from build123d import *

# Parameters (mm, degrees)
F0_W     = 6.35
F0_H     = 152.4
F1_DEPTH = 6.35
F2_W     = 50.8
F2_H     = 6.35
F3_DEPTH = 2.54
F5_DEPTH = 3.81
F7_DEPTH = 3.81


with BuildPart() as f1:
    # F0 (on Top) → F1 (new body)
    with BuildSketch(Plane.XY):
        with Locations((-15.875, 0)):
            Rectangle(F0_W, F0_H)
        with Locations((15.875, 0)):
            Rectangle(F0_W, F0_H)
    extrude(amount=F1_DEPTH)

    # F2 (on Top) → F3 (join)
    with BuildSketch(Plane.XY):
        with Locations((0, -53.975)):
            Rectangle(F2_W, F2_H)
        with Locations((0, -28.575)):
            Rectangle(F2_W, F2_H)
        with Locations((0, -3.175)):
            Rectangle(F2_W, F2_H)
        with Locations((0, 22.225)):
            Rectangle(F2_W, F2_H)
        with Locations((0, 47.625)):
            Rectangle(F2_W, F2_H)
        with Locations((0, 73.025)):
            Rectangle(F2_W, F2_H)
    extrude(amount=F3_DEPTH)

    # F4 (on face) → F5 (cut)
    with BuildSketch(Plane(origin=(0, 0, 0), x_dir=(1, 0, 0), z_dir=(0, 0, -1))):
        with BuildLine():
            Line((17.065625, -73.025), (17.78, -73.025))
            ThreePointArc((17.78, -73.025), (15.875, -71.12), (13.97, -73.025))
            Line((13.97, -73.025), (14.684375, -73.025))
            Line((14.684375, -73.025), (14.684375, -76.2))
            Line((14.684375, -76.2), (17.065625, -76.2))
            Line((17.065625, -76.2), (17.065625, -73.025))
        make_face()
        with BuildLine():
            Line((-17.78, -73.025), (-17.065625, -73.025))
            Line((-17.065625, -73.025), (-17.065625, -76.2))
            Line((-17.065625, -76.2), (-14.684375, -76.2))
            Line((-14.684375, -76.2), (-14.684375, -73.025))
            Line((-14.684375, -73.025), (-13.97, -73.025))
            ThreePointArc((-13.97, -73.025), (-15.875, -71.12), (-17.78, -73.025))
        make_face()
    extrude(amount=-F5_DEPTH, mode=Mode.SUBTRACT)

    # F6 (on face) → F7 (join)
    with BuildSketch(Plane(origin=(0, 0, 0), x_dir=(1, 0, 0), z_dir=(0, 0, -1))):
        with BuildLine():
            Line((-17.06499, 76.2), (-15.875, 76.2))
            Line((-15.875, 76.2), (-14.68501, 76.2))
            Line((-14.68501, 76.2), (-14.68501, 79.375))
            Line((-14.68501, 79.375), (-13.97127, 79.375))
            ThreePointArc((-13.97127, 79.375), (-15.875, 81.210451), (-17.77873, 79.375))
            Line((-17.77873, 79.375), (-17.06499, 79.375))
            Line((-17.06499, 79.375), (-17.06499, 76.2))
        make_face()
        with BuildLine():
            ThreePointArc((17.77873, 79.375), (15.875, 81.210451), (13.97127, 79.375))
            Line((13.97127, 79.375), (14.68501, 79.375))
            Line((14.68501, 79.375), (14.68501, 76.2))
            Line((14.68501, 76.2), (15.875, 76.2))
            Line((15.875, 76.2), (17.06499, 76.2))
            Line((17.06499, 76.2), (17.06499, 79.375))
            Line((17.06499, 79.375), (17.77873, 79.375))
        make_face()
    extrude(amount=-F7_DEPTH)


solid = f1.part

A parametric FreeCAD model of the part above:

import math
import FreeCAD as App
import Part
import Sketcher

V = App.Vector
Q = App.Units.Quantity


def add_polygon(sketch, points):
    """Adds a closed chain of lines whose ends are joined by coincident constraints."""
    first, n = sketch.GeometryCount, len(points)
    for a, b in zip(points, points[1:] + points[:1]):
        sketch.addGeometry(Part.LineSegment(App.Vector(*a, 0), App.Vector(*b, 0)), False)
    for i in range(n):
        sketch.addConstraint(Sketcher.Constraint("Coincident", first + i, 2, first + (i + 1) % n, 1))

doc = App.newDocument("Part")
params = doc.addObject("Spreadsheet::Sheet", "Params")
for row, (alias, value) in enumerate([
    ("sketch1_height", "6 in"),
    ("sketch1_width", "0.25 in"),
    ("pad1_length", "0.25 in"),
    ("sketch2_width", "2 in"),
    ("sketch2_height", "0.25 in"),
    ("pad2_length", "0.1 in"),
    ("sketch3_radius", "0.075 in"),
    ("sketch3_width", "0.09375 in"),
    ("sketch3_height", "0.125 in"),
    ("pocket1_length", "0.15 in"),
    ("sketch4_radius", "0.075 in"),
    ("sketch4_height", "0.125 in"),
    ("pad3_length", "0.15 in"),
], start=1):
    params.set(f"A{row}", alias)
    params.set(f"B{row}", "=" + value)
    params.setAlias(f"B{row}", alias)

body = doc.addObject("PartDesign::Body", "Body")
body.AllowCompound = True

# Sketch on XY plane
sketch1 = body.newObject("Sketcher::SketchObject", "Sketch")
sketch1.AttachmentSupport = (doc.getObject("XY_Plane"), [""])
sketch1.MapMode = "FlatFace"
add_polygon(sketch1, [(-19, 76), (-19, -76), (-13, -76), (-13, 76)])  # lines 0-3
add_polygon(sketch1, [(13, 76), (13, -76), (19, -76), (19, 76)])  # lines 4-7
sketch1.addConstraint(Sketcher.Constraint("Vertical", 0))
sketch1.addConstraint(Sketcher.Constraint("Horizontal", 1))
sketch1.addConstraint(Sketcher.Constraint("Vertical", 2))
sketch1.addConstraint(Sketcher.Constraint("Horizontal", 3))
sketch1.addConstraint(Sketcher.Constraint("Vertical", 4))
sketch1.addConstraint(Sketcher.Constraint("Horizontal", 5))
sketch1.addConstraint(Sketcher.Constraint("Vertical", 6))
sketch1.addConstraint(Sketcher.Constraint("Horizontal", 7))
sketch1.addConstraint(Sketcher.Constraint("Symmetric", 2, 2, 4, 2, -1, 1))
sketch1.addConstraint(Sketcher.Constraint("Symmetric", 0, 2, 6, 2, -1, 1))
sketch1.addConstraint(Sketcher.Constraint("Horizontal", 1, 2, 4, 2))
sketch1.addConstraint(Sketcher.Constraint("DistanceY", 0, 2, 0, 1, Q("6 in")))
sketch1.addConstraint(Sketcher.Constraint("DistanceX", 1, 2, 4, 2, Q("1 in")))
sketch1.addConstraint(Sketcher.Constraint("DistanceX", 1, 1, 1, 2, Q("0.25 in")))
sketch1.setExpression("Constraints[19]", "Params.sketch1_height")
sketch1.setExpression("Constraints[21]", "Params.sketch1_width")
pad1 = body.newObject("PartDesign::Pad", "Pad")
pad1.Profile = sketch1
pad1.setExpression("Length", "Params.pad1_length")

# Sketch on XY plane
sketch2 = body.newObject("Sketcher::SketchObject", "Sketch001")
sketch2.AttachmentSupport = (doc.getObject("XY_Plane"), [""])
sketch2.MapMode = "FlatFace"
add_polygon(sketch2, [(-25, -51), (-25, -57), (25, -57), (25, -51)])  # lines 0-3
add_polygon(sketch2, [(-25, -25), (-25, -32), (25, -32), (25, -25)])  # lines 4-7
add_polygon(sketch2, [(-25, 0), (-25, -6), (25, -6), (25, 0)])  # lines 8-11
add_polygon(sketch2, [(-25, 25), (-25, 19), (25, 19), (25, 25)])  # lines 12-15
add_polygon(sketch2, [(-25, 51), (-25, 44), (25, 44), (25, 51)])  # lines 16-19
add_polygon(sketch2, [(-25, 76), (-25, 70), (25, 70), (25, 76)])  # lines 20-23
sketch2.addConstraint(Sketcher.Constraint("Vertical", 0))
sketch2.addConstraint(Sketcher.Constraint("Horizontal", 1))
sketch2.addConstraint(Sketcher.Constraint("Vertical", 2))
sketch2.addConstraint(Sketcher.Constraint("Horizontal", 3))
sketch2.addConstraint(Sketcher.Constraint("Vertical", 4))
sketch2.addConstraint(Sketcher.Constraint("Horizontal", 5))
sketch2.addConstraint(Sketcher.Constraint("Vertical", 6))
sketch2.addConstraint(Sketcher.Constraint("Horizontal", 7))
sketch2.addConstraint(Sketcher.Constraint("Vertical", 8))
sketch2.addConstraint(Sketcher.Constraint("Horizontal", 9))
sketch2.addConstraint(Sketcher.Constraint("Vertical", 10))
sketch2.addConstraint(Sketcher.Constraint("Horizontal", 11))
sketch2.addConstraint(Sketcher.Constraint("Vertical", 12))
sketch2.addConstraint(Sketcher.Constraint("Horizontal", 13))
sketch2.addConstraint(Sketcher.Constraint("Vertical", 14))
sketch2.addConstraint(Sketcher.Constraint("Horizontal", 15))
sketch2.addConstraint(Sketcher.Constraint("Vertical", 16))
sketch2.addConstraint(Sketcher.Constraint("Horizontal", 17))
sketch2.addConstraint(Sketcher.Constraint("Vertical", 18))
sketch2.addConstraint(Sketcher.Constraint("Horizontal", 19))
sketch2.addConstraint(Sketcher.Constraint("Vertical", 20))
sketch2.addConstraint(Sketcher.Constraint("Horizontal", 21))
sketch2.addConstraint(Sketcher.Constraint("Vertical", 22))
sketch2.addConstraint(Sketcher.Constraint("Horizontal", 23))
sketch2.addConstraint(Sketcher.Constraint("Symmetric", 10, 2, 11, 2, -1, 1))
sketch2.addConstraint(Sketcher.Constraint("Symmetric", 7, 2, 14, 2, -1, 1))
sketch2.addConstraint(Sketcher.Constraint("Symmetric", 3, 2, 18, 2, -1, 1))
sketch2.addConstraint(Sketcher.Constraint("Vertical", 3, 2, 4, 2))
sketch2.addConstraint(Sketcher.Constraint("Vertical", 2, 2, 5, 2))
sketch2.addConstraint(Sketcher.Constraint("Vertical", 7, 2, 8, 2))
sketch2.addConstraint(Sketcher.Constraint("Vertical", 6, 2, 9, 2))
sketch2.addConstraint(Sketcher.Constraint("Vertical", 11, 2, 12, 2))
sketch2.addConstraint(Sketcher.Constraint("Vertical", 15, 2, 16, 2))
sketch2.addConstraint(Sketcher.Constraint("Vertical", 19, 2, 20, 2))
sketch2.addConstraint(Sketcher.Constraint("Vertical", 18, 2, 21, 2))
sketch2.addConstraint(Sketcher.Constraint("Equal", 2, 4))
sketch2.addConstraint(Sketcher.Constraint("Equal", 6, 8))
sketch2.addConstraint(Sketcher.Constraint("Equal", 10, 12))
sketch2.addConstraint(Sketcher.Constraint("Equal", 14, 16))
sketch2.addConstraint(Sketcher.Constraint("Equal", 18, 20))
sketch2.addConstraint(Sketcher.Constraint("DistanceX", 1, 1, 1, 2, Q("2 in")))
sketch2.addConstraint(Sketcher.Constraint("DistanceY", 2, 2, -1, 1, Q("2 in")))
sketch2.addConstraint(Sketcher.Constraint("DistanceY", 6, 2, -1, 1, Q("1 in")))
sketch2.addConstraint(Sketcher.Constraint("DistanceY", -1, 1, 22, 2, Q("3 in")))
sketch2.addConstraint(Sketcher.Constraint("DistanceY", 0, 2, 0, 1, Q("0.25 in")))
sketch2.setExpression("Constraints[64]", "Params.sketch2_width")
sketch2.setExpression("Constraints[68]", "Params.sketch2_height")
pad2 = body.newObject("PartDesign::Pad", "Pad001")
pad2.Profile = sketch2
pad2.setExpression("Length", "Params.pad2_length")

# Sketch on XY plane
sketch3 = body.newObject("Sketcher::SketchObject", "Sketch002")
sketch3.AttachmentSupport = (doc.getObject("XY_Plane"), [""])
sketch3.MapMode = "FlatFace"
sketch3.addGeometry(Part.LineSegment(V(17.1, 73, 0), V(17.8, 73, 0)), False)
sketch3.addGeometry(Part.ArcOfCircle(Part.Circle(V(15.9, 73, 0), V(0, 0, 1), 1.9), math.radians(180), math.radians(360)), False)
sketch3.addGeometry(Part.LineSegment(V(14, 73, 0), V(14.7, 73, 0)), False)
sketch3.addGeometry(Part.LineSegment(V(14.7, 73, 0), V(14.7, 76.2, 0)), False)
sketch3.addGeometry(Part.LineSegment(V(14.7, 76.2, 0), V(17.1, 76.2, 0)), False)
sketch3.addGeometry(Part.LineSegment(V(17.1, 76.2, 0), V(17.1, 73, 0)), False)
sketch3.addGeometry(Part.LineSegment(V(-17.8, 73, 0), V(-17.1, 73, 0)), False)
sketch3.addGeometry(Part.LineSegment(V(-17.1, 73, 0), V(-17.1, 76.2, 0)), False)
sketch3.addGeometry(Part.LineSegment(V(-17.1, 76.2, 0), V(-14.7, 76.2, 0)), False)
sketch3.addGeometry(Part.LineSegment(V(-14.7, 76.2, 0), V(-14.7, 73, 0)), False)
sketch3.addGeometry(Part.LineSegment(V(-14.7, 73, 0), V(-14, 73, 0)), False)
sketch3.addGeometry(Part.ArcOfCircle(Part.Circle(V(-15.9, 73, 0), V(0, 0, 1), 1.9), math.radians(180), math.radians(360)), False)
sketch3.addConstraint(Sketcher.Constraint("Coincident", 0, 2, 1, 2))
sketch3.addConstraint(Sketcher.Constraint("Coincident", 1, 1, 2, 1))
sketch3.addConstraint(Sketcher.Constraint("Coincident", 2, 2, 3, 1))
sketch3.addConstraint(Sketcher.Constraint("Coincident", 3, 2, 4, 1))
sketch3.addConstraint(Sketcher.Constraint("Coincident", 4, 2, 5, 1))
sketch3.addConstraint(Sketcher.Constraint("Coincident", 5, 2, 0, 1))
sketch3.addConstraint(Sketcher.Constraint("Coincident", 6, 2, 7, 1))
sketch3.addConstraint(Sketcher.Constraint("Coincident", 7, 2, 8, 1))
sketch3.addConstraint(Sketcher.Constraint("Coincident", 8, 2, 9, 1))
sketch3.addConstraint(Sketcher.Constraint("Coincident", 9, 2, 10, 1))
sketch3.addConstraint(Sketcher.Constraint("Coincident", 10, 2, 11, 2))
sketch3.addConstraint(Sketcher.Constraint("Coincident", 11, 1, 6, 1))
sketch3.addConstraint(Sketcher.Constraint("Horizontal", 0))
sketch3.addConstraint(Sketcher.Constraint("Horizontal", 2))
sketch3.addConstraint(Sketcher.Constraint("Vertical", 3))
sketch3.addConstraint(Sketcher.Constraint("Horizontal", 4))
sketch3.addConstraint(Sketcher.Constraint("Vertical", 5))
sketch3.addConstraint(Sketcher.Constraint("Horizontal", 6))
sketch3.addConstraint(Sketcher.Constraint("Vertical", 7))
sketch3.addConstraint(Sketcher.Constraint("Horizontal", 8))
sketch3.addConstraint(Sketcher.Constraint("Vertical", 9))
sketch3.addConstraint(Sketcher.Constraint("Horizontal", 10))
sketch3.addConstraint(Sketcher.Constraint("Equal", 1, 11))
sketch3.addConstraint(Sketcher.Constraint("Symmetric", 1, 3, 11, 3, -2))
sketch3.addConstraint(Sketcher.Constraint("Symmetric", 5, 2, 6, 2, -2))
sketch3.addConstraint(Sketcher.Constraint("Symmetric", 3, 2, 8, 2, -2))
sketch3.addConstraint(Sketcher.Constraint("Horizontal", 11, 3, 0, 2))
sketch3.addConstraint(Sketcher.Constraint("Horizontal", 0, 2, 1, 1))
sketch3.addConstraint(Sketcher.Constraint("Horizontal", 6, 2, 9, 2))
sketch3.addConstraint(Sketcher.Constraint("Equal", 0, 2))
sketch3.addConstraint(Sketcher.Constraint("DistanceY", -1, 1, 3, 2, Q("3 in")))
sketch3.addConstraint(Sketcher.Constraint("Radius", 1, Q("0.075 in")))
sketch3.addConstraint(Sketcher.Constraint("DistanceX", -1, 1, 0, 2, Q("0.7 in")))
sketch3.addConstraint(Sketcher.Constraint("DistanceX", 4, 1, 4, 2, Q("0.09375 in")))
sketch3.addConstraint(Sketcher.Constraint("DistanceY", 3, 1, 3, 2, Q("0.125 in")))
sketch3.setExpression("Constraints[31]", "Params.sketch3_radius")
sketch3.setExpression("Constraints[33]", "Params.sketch3_width")
sketch3.setExpression("Constraints[34]", "Params.sketch3_height")
pocket1 = body.newObject("PartDesign::Pocket", "Pocket")
pocket1.Profile = sketch3
pocket1.setExpression("Length", "Params.pocket1_length")
pocket1.Reversed = True

# Sketch on XY plane
sketch4 = body.newObject("Sketcher::SketchObject", "Sketch003")
sketch4.AttachmentSupport = (doc.getObject("XY_Plane"), [""])
sketch4.MapMode = "FlatFace"
sketch4.addGeometry(Part.LineSegment(V(-17.1, -76.2, 0), V(-14.7, -76.2, 0)), False)
sketch4.addGeometry(Part.LineSegment(V(-14.7, -76.2, 0), V(-14.7, -79.4, 0)), False)
sketch4.addGeometry(Part.LineSegment(V(-14.7, -79.4, 0), V(-14, -79.4, 0)), False)
sketch4.addGeometry(Part.ArcOfCircle(Part.Circle(V(-15.9, -79.3, 0), V(0, 0, 1), 1.9), math.radians(-178), math.radians(-2)), False)
sketch4.addGeometry(Part.LineSegment(V(-17.8, -79.4, 0), V(-17.1, -79.4, 0)), False)
sketch4.addGeometry(Part.LineSegment(V(-17.1, -79.4, 0), V(-17.1, -76.2, 0)), False)
sketch4.addGeometry(Part.ArcOfCircle(Part.Circle(V(15.9, -79.3, 0), V(0, 0, 1), 1.9), math.radians(-178), math.radians(-2)), False)
sketch4.addGeometry(Part.LineSegment(V(14, -79.4, 0), V(14.7, -79.4, 0)), False)
sketch4.addGeometry(Part.LineSegment(V(14.7, -79.4, 0), V(14.7, -76.2, 0)), False)
sketch4.addGeometry(Part.LineSegment(V(14.7, -76.2, 0), V(17.1, -76.2, 0)), False)
sketch4.addGeometry(Part.LineSegment(V(17.1, -76.2, 0), V(17.1, -79.4, 0)), False)
sketch4.addGeometry(Part.LineSegment(V(17.1, -79.4, 0), V(17.8, -79.4, 0)), False)
sketch4.addConstraint(Sketcher.Constraint("Coincident", 0, 2, 1, 1))
sketch4.addConstraint(Sketcher.Constraint("Coincident", 1, 2, 2, 1))
sketch4.addConstraint(Sketcher.Constraint("Coincident", 2, 2, 3, 2))
sketch4.addConstraint(Sketcher.Constraint("Coincident", 3, 1, 4, 1))
sketch4.addConstraint(Sketcher.Constraint("Coincident", 4, 2, 5, 1))
sketch4.addConstraint(Sketcher.Constraint("Coincident", 5, 2, 0, 1))
sketch4.addConstraint(Sketcher.Constraint("Coincident", 6, 1, 7, 1))
sketch4.addConstraint(Sketcher.Constraint("Coincident", 7, 2, 8, 1))
sketch4.addConstraint(Sketcher.Constraint("Coincident", 8, 2, 9, 1))
sketch4.addConstraint(Sketcher.Constraint("Coincident", 9, 2, 10, 1))
sketch4.addConstraint(Sketcher.Constraint("Coincident", 10, 2, 11, 1))
sketch4.addConstraint(Sketcher.Constraint("Coincident", 11, 2, 6, 2))
sketch4.addConstraint(Sketcher.Constraint("Horizontal", 0))
sketch4.addConstraint(Sketcher.Constraint("Vertical", 1))
sketch4.addConstraint(Sketcher.Constraint("Horizontal", 2))
sketch4.addConstraint(Sketcher.Constraint("Horizontal", 4))
sketch4.addConstraint(Sketcher.Constraint("Vertical", 5))
sketch4.addConstraint(Sketcher.Constraint("Horizontal", 7))
sketch4.addConstraint(Sketcher.Constraint("Vertical", 8))
sketch4.addConstraint(Sketcher.Constraint("Horizontal", 9))
sketch4.addConstraint(Sketcher.Constraint("Vertical", 10))
sketch4.addConstraint(Sketcher.Constraint("Horizontal", 11))
sketch4.addConstraint(Sketcher.Constraint("Equal", 3, 6))
sketch4.addConstraint(Sketcher.Constraint("Symmetric", 3, 3, 6, 3, -2))
sketch4.addConstraint(Sketcher.Constraint("Symmetric", 1, 2, 7, 2, -2))
sketch4.addConstraint(Sketcher.Constraint("Symmetric", 5, 2, 9, 2, -2))
sketch4.addConstraint(Sketcher.Constraint("Horizontal", 2, 2, 3, 1))
sketch4.addConstraint(Sketcher.Constraint("Horizontal", 7, 2, 10, 2))
sketch4.addConstraint(Sketcher.Constraint("Equal", 2, 4))
sketch4.addConstraint(Sketcher.Constraint("DistanceY", 0, 2, -1, 1, Q("3 in")))
sketch4.addConstraint(Sketcher.Constraint("Radius", 3, Q("0.075 in")))
sketch4.addConstraint(Sketcher.Constraint("DistanceY", 1, 2, 1, 1, Q("0.125 in")))
sketch4.addConstraint(Sketcher.Constraint("DistanceX", 3, 3, 6, 3, Q("1.25 in")))
sketch4.addConstraint(Sketcher.Constraint("DistanceX", 0, 1, 0, 2, Q("0.0937 in")))
sketch4.addConstraint(Sketcher.Constraint("DistanceX", 2, 1, 2, 2, Q("0.0281 in")))
sketch4.setExpression("Constraints[30]", "Params.sketch4_radius")
sketch4.setExpression("Constraints[31]", "Params.sketch4_height")
pad3 = body.newObject("PartDesign::Pad", "Pad002")
pad3.Profile = sketch4
pad3.setExpression("Length", "Params.pad3_length")

doc.recompute()
